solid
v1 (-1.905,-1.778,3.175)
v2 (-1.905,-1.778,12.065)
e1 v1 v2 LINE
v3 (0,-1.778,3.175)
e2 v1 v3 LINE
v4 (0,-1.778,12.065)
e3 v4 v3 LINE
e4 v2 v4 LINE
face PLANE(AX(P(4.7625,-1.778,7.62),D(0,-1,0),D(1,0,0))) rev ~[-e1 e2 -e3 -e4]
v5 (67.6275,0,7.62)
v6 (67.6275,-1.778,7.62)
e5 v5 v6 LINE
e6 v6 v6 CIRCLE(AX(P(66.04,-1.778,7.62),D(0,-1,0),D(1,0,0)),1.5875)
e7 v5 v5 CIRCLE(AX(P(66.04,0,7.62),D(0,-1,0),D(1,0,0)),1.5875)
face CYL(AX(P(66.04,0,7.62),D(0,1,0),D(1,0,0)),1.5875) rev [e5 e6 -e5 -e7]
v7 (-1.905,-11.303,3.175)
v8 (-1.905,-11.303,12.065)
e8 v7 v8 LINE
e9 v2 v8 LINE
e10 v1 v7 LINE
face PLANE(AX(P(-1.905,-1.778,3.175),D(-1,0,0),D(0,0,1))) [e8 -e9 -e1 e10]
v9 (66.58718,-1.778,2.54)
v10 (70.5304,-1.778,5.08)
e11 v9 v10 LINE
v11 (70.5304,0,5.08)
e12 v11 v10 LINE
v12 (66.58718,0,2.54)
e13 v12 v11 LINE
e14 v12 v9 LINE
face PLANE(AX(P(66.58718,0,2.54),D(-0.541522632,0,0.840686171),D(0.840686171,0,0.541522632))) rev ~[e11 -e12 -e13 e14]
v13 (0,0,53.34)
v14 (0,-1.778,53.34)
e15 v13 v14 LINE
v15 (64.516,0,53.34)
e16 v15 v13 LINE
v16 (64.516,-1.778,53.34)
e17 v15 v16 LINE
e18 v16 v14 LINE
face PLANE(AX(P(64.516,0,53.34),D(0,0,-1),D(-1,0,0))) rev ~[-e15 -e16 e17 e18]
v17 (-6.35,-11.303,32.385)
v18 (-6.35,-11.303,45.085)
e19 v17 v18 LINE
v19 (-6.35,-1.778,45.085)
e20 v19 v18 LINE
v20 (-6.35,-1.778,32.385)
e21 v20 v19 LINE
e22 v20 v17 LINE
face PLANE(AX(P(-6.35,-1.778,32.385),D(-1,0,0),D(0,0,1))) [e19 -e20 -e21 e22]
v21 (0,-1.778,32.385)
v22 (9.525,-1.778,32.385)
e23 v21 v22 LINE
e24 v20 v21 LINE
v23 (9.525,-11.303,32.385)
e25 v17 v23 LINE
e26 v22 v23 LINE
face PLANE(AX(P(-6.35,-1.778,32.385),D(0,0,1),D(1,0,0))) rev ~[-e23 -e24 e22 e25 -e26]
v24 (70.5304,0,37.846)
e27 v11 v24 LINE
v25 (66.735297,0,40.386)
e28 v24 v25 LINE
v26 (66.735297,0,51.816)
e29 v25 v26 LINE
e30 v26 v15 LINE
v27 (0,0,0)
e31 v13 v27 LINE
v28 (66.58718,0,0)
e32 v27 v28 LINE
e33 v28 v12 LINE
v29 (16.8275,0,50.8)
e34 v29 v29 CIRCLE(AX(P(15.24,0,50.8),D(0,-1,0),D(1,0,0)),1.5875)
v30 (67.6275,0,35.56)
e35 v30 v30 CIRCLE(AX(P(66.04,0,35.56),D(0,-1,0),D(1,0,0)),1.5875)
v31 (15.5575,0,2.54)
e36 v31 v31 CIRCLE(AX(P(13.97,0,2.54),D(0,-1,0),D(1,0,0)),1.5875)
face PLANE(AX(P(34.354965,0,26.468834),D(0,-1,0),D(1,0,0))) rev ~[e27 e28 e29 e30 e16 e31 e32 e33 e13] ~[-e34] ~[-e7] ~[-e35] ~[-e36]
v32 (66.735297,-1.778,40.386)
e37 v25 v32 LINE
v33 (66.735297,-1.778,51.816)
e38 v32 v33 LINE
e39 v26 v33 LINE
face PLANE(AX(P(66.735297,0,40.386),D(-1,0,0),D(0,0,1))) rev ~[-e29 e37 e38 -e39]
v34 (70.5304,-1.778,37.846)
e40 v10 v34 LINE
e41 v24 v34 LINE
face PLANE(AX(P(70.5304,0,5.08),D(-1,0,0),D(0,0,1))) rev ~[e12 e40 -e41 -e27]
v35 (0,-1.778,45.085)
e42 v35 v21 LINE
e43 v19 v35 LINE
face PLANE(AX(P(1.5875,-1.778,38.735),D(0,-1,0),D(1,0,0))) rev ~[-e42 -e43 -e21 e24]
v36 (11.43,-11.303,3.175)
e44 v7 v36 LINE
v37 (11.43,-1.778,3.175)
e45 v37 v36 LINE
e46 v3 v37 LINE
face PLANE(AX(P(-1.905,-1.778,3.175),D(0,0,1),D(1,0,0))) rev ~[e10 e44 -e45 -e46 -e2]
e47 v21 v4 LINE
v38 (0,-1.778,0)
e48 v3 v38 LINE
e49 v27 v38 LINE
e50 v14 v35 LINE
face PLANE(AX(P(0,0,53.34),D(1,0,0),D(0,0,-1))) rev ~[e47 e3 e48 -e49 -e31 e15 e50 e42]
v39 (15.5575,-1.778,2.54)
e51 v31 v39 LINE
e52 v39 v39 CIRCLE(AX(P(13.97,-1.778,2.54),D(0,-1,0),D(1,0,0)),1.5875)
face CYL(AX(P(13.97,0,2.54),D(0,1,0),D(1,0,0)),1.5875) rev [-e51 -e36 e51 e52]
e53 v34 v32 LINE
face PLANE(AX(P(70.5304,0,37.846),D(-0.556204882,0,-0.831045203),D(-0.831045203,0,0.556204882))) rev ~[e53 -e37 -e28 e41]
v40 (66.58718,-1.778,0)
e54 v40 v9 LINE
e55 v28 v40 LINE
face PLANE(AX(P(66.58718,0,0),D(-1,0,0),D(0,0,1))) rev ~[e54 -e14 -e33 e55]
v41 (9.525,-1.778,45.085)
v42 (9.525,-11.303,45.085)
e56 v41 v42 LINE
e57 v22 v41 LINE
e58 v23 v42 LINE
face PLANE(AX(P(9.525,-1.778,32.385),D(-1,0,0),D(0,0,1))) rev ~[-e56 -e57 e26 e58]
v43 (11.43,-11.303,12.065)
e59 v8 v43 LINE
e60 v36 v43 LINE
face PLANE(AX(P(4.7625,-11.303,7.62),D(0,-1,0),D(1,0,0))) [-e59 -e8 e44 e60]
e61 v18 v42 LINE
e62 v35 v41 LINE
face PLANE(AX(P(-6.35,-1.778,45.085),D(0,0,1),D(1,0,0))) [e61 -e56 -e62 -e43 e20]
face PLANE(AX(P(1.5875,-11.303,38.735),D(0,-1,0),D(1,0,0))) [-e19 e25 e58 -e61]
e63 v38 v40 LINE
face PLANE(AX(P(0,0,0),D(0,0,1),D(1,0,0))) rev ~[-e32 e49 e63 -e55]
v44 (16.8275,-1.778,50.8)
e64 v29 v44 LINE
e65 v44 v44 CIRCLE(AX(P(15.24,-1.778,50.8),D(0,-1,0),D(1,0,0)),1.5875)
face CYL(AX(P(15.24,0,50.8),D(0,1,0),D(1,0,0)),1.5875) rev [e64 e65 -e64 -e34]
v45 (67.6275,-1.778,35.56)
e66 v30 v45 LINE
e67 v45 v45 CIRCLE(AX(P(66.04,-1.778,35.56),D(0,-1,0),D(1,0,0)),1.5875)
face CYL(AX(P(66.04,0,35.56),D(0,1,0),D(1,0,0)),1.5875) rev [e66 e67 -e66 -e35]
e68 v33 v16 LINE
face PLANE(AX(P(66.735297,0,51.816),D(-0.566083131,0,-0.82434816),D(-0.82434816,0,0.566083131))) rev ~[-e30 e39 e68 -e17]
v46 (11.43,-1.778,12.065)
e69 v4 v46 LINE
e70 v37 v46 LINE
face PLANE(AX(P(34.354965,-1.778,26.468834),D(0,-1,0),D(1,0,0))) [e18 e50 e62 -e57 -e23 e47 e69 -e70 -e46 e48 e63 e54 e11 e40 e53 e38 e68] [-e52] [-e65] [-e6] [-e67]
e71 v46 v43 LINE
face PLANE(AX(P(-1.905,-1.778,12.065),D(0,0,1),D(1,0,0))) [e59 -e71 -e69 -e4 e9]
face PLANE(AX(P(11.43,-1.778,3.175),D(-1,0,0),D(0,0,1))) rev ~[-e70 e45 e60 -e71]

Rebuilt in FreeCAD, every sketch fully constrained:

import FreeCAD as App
import Part
import Sketcher
from FreeCAD import Vector
Q = App.Units.Quantity


def add_polygon(sketch, points):
    """Adds a closed chain of lines whose ends are joined by coincident constraints."""
    first, n = sketch.GeometryCount, len(points)
    for a, b in zip(points, points[1:] + points[:1]):
        sketch.addGeometry(Part.LineSegment(App.Vector(*a, 0), App.Vector(*b, 0)), False)
    for i in range(n):
        sketch.addConstraint(Sketcher.Constraint("Coincident", first + i, 2, first + (i + 1) % n, 1))

doc = App.newDocument("Part")
body = doc.addObject("PartDesign::Body", "Body")

# Sketch on XZ plane
sketch1 = doc.addObject("Sketcher::SketchObject", "Sketch")
body.addObject(sketch1)
sketch1.AttachmentSupport = (doc.XZ_Plane, [""])
sketch1.MapMode = "FlatFace"
add_polygon(sketch1, [(0, 53.34), (0, 0), (66.58718, 0), (66.58718, 2.54), (70.5304, 5.08), (70.5304, 37.846), (66.735297, 40.386), (66.735297, 51.816), (64.516, 53.34)])  # lines 0-8
sketch1.addGeometry(Part.Circle(Vector(13.97, 2.54, 0), Vector(0, 0, 1), 1.5875), False)  # 9
sketch1.addGeometry(Part.Circle(Vector(66.04, 7.62, 0), Vector(0, 0, 1), 1.5875), False)  # 10
sketch1.addGeometry(Part.Circle(Vector(15.24, 50.8, 0), Vector(0, 0, 1), 1.5875), False)  # 11
sketch1.addGeometry(Part.Circle(Vector(66.04, 35.56, 0), Vector(0, 0, 1), 1.5875), False)  # 12
sketch1.addConstraint([
    Sketcher.Constraint("Vertical", 0),
    Sketcher.Constraint("Horizontal", 1),
    Sketcher.Constraint("Vertical", 2),
    Sketcher.Constraint("Vertical", 4),
    Sketcher.Constraint("Vertical", 6),
    Sketcher.Constraint("Horizontal", 8),
    Sketcher.Constraint("Coincident", 0, 2, -1, 1),
    Sketcher.Constraint("Equal", 9, 10),
    Sketcher.Constraint("Equal", 10, 11),
    Sketcher.Constraint("Equal", 11, 12),
    Sketcher.Constraint("Horizontal", 9, 3, 2, 2),
    Sketcher.Constraint("Vertical", 10, 3, 12, 3),
    Sketcher.Constraint("Diameter", 9, Q("0.125 in")),
    Sketcher.Constraint("DistanceY", 0, 2, 0, 1, Q("2.1 in")),
    Sketcher.Constraint("DistanceY", 2, 1, 2, 2, Q("0.1 in")),
    Sketcher.Constraint("DistanceY", -1, 1, 11, 3, Q("2 in")),
    Sketcher.Constraint("DistanceX", 11, 3, 10, 3, Q("2 in")),
    Sketcher.Constraint("DistanceX", 8, 2, 8, 1, Q("2.54 in")),
    Sketcher.Constraint("DistanceY", 4, 1, 4, 2, Q("1.29 in")),
    Sketcher.Constraint("DistanceY", 6, 1, 6, 2, Q("0.45 in")),
    Sketcher.Constraint("DistanceX", -1, 1, 10, 3, Q("2.6 in")),
    Sketcher.Constraint("DistanceY", -1, 1, 10, 3, Q("0.3 in")),
    Sketcher.Constraint("DistanceY", -1, 1, 12, 3, Q("1.4 in")),
    Sketcher.Constraint("DistanceY", -1, 1, 3, 2, Q("0.2 in")),
    Sketcher.Constraint("DistanceY", 4, 2, 5, 2, Q("0.1 in")),
    Sketcher.Constraint("DistanceX", -1, 1, 9, 3, Q("0.55 in")),
    Sketcher.Constraint("DistanceX", 1, 1, 1, 2, Q("66.58718 mm")),
    Sketcher.Constraint("DistanceX", -1, 1, 3, 2, Q("70.5304 mm")),
    Sketcher.Constraint("Distance", 5, Q("4.566663 mm")),
])
pad1 = doc.addObject("PartDesign::Pad", "Pad")
body.addObject(pad1)
pad1.Profile = sketch1
pad1.Length = Q("0.07 in")

# Sketch on XZ plane
sketch2 = doc.addObject("Sketcher::SketchObject", "Sketch001")
body.addObject(sketch2)
sketch2.AttachmentSupport = (doc.XZ_Plane, [""])
sketch2.MapMode = "FlatFace"
sketch2.AttachmentOffset = App.Placement(Vector(0, 0, 0.07 * 25.4), App.Rotation())
add_polygon(sketch2, [(-1.905, 12.065), (-1.905, 3.175), (11.43, 3.175), (11.43, 12.065)])  # lines 0-3
sketch2.addConstraint([
    Sketcher.Constraint("Vertical", 0),
    Sketcher.Constraint("Horizontal", 1),
    Sketcher.Constraint("Vertical", 2),
    Sketcher.Constraint("Horizontal", 3),
    Sketcher.Constraint("DistanceY", 0, 2, 0, 1, Q("0.35 in")),
    Sketcher.Constraint("DistanceX", 1, 1, 1, 2, Q("0.525 in")),
    Sketcher.Constraint("DistanceX", -1, 1, 1, 2, Q("0.45 in")),
    Sketcher.Constraint("DistanceY", -1, 1, 0, 2, Q("0.125 in")),
])
pad2 = doc.addObject("PartDesign::Pad", "Pad001")
body.addObject(pad2)
pad2.Profile = sketch2
pad2.Length = Q("0.375 in")

# Sketch on XZ plane
sketch3 = doc.addObject("Sketcher::SketchObject", "Sketch002")
body.addObject(sketch3)
sketch3.AttachmentSupport = (doc.XZ_Plane, [""])
sketch3.MapMode = "FlatFace"
sketch3.AttachmentOffset = App.Placement(Vector(0, 0, 0.07 * 25.4), App.Rotation())
add_polygon(sketch3, [(-6.35, 45.085), (-6.35, 32.385), (9.525, 32.385), (9.525, 45.085)])  # lines 0-3
sketch3.addConstraint([
    Sketcher.Constraint("Vertical", 0),
    Sketcher.Constraint("Horizontal", 1),
    Sketcher.Constraint("Vertical", 2),
    Sketcher.Constraint("Horizontal", 3),
    Sketcher.Constraint("DistanceY", 0, 2, 0, 1, Q("0.5 in")),
    Sketcher.Constraint("DistanceX", 1, 1, 1, 2, Q("0.625 in")),
    Sketcher.Constraint("DistanceX", 0, 2, -1, 1, Q("0.25 in")),
    Sketcher.Constraint("DistanceY", -1, 1, 0, 2, Q("1.275 in")),
])
pad3 = doc.addObject("PartDesign::Pad", "Pad002")
body.addObject(pad3)
pad3.Profile = sketch3
pad3.Length = Q("0.375 in")

doc.recompute()
